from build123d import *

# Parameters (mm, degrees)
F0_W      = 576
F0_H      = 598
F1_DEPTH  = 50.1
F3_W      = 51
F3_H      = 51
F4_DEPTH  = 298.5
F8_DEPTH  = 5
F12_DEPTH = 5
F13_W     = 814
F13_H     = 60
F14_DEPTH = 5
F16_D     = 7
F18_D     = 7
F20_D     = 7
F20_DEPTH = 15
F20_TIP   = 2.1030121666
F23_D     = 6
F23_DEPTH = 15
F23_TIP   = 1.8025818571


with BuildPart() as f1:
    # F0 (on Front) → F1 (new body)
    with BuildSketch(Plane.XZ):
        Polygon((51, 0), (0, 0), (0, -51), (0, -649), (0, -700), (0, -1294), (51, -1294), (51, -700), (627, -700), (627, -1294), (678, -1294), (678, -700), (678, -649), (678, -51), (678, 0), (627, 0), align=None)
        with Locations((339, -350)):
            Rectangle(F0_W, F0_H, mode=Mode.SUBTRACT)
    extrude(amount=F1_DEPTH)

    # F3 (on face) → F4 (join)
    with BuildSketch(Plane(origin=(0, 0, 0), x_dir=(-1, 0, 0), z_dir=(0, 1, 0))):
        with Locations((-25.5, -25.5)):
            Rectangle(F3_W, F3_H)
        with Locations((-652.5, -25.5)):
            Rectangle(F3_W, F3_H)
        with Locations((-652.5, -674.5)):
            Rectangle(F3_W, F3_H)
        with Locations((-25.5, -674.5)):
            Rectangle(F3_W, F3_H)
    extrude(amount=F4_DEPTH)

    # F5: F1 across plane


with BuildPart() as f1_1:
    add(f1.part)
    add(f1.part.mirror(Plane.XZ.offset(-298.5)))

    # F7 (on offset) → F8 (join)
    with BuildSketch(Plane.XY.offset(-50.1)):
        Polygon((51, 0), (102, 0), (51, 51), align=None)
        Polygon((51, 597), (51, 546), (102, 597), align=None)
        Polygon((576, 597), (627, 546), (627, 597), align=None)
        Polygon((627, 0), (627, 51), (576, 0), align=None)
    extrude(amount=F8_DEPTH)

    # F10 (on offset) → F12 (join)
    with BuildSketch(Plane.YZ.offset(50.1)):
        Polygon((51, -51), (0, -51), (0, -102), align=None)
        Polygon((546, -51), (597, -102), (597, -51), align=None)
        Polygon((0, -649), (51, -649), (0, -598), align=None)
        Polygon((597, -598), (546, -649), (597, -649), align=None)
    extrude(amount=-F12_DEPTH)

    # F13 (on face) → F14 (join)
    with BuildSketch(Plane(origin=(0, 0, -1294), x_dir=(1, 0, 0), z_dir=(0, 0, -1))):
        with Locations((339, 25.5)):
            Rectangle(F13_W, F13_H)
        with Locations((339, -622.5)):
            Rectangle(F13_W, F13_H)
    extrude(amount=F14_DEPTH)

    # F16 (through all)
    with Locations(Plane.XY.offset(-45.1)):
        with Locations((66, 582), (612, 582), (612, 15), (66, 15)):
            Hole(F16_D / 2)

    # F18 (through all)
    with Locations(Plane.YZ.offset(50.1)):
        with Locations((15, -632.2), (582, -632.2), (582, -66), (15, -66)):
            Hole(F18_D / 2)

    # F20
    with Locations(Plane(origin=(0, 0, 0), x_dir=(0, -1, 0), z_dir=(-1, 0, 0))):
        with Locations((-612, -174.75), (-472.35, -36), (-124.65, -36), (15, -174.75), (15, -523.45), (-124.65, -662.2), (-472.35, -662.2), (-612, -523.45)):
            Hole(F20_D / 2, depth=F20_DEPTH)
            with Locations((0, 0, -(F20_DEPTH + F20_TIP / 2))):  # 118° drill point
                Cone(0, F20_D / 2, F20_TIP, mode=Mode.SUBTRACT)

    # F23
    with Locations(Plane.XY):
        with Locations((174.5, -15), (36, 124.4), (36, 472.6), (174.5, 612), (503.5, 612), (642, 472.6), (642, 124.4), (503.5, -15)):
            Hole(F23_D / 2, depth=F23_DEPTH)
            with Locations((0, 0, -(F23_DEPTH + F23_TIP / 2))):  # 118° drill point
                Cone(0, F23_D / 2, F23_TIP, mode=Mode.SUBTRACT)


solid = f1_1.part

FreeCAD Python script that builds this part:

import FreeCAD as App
import Part
import Sketcher
from FreeCAD import Vector
Q = App.Units.Quantity


def add_polygon(sketch, points):
    """Adds a closed chain of lines whose ends are joined by coincident constraints."""
    first, n = sketch.GeometryCount, len(points)
    for a, b in zip(points, points[1:] + points[:1]):
        sketch.addGeometry(Part.LineSegment(App.Vector(*a, 0), App.Vector(*b, 0)), False)
    for i in range(n):
        sketch.addConstraint(Sketcher.Constraint("Coincident", first + i, 2, first + (i + 1) % n, 1))

doc = App.newDocument("Part")
body = doc.addObject("PartDesign::Body", "Body")

# Sketch on XZ plane
sketch1 = body.newObject("Sketcher::SketchObject", "Sketch")
sketch1.AttachmentSupport = (doc.getObject("XZ_Plane"), [""])
sketch1.MapMode = "FlatFace"
add_polygon(sketch1, [(0, 0), (0, -1294), (51, -1294), (51, -700), (627, -700), (627, -1294), (678, -1294), (678, 0)])  # lines 0-7
add_polygon(sketch1, [(627, -649), (51, -649), (51, -51), (627, -51)])  # lines 8-11
sketch1.addConstraint([
    Sketcher.Constraint("Vertical", 0),
    Sketcher.Constraint("Horizontal", 1),
    Sketcher.Constraint("Vertical", 2),
    Sketcher.Constraint("Horizontal", 3),
    Sketcher.Constraint("Vertical", 4),
    Sketcher.Constraint("Horizontal", 5),
    Sketcher.Constraint("Vertical", 6),
    Sketcher.Constraint("Horizontal", 7),
    Sketcher.Constraint("Horizontal", 8),
    Sketcher.Constraint("Vertical", 9),
    Sketcher.Constraint("Horizontal", 10),
    Sketcher.Constraint("Vertical", 11),
    Sketcher.Constraint("Coincident", 7, 2, -1, 1),
    Sketcher.Constraint("Horizontal", 1, 2, 4, 2),
    Sketcher.Constraint("Vertical", 2, 2, 8, 2),
    Sketcher.Constraint("Vertical", 4, 2, 10, 2),
    Sketcher.Constraint("Equal", 1, 5),
    Sketcher.Constraint("DistanceX", 1, 1, 1, 2, Q("51 mm")),
    Sketcher.Constraint("DistanceX", 3, 1, 3, 2, Q("576 mm")),
    Sketcher.Constraint("DistanceY", 0, 2, 0, 1, Q("1294 mm")),
    Sketcher.Constraint("DistanceY", 2, 1, 2, 2, Q("594 mm")),
    Sketcher.Constraint("DistanceY", 9, 1, 9, 2, Q("598 mm")),
    Sketcher.Constraint("DistanceY", 8, 2, -1, 1, Q("649 mm")),
])
pad1 = body.newObject("PartDesign::Pad", "Pad")
pad1.Profile = sketch1
pad1.Length = 50.1

# Sketch on XZ plane
sketch2 = body.newObject("Sketcher::SketchObject", "Sketch001")
sketch2.AttachmentSupport = (doc.getObject("XZ_Plane"), [""])
sketch2.MapMode = "FlatFace"
add_polygon(sketch2, [(51, 0), (51, -51), (0, -51), (0, 0)])  # lines 0-3
add_polygon(sketch2, [(678, 0), (678, -51), (627, -51), (627, 0)])  # lines 4-7
add_polygon(sketch2, [(678, -649), (678, -700), (627, -700), (627, -649)])  # lines 8-11
add_polygon(sketch2, [(51, -649), (51, -700), (0, -700), (0, -649)])  # lines 12-15
sketch2.addConstraint([
    Sketcher.Constraint("Vertical", 0),
    Sketcher.Constraint("Horizontal", 1),
    Sketcher.Constraint("Vertical", 2),
    Sketcher.Constraint("Horizontal", 3),
    Sketcher.Constraint("Vertical", 4),
    Sketcher.Constraint("Horizontal", 5),
    Sketcher.Constraint("Vertical", 6),
    Sketcher.Constraint("Horizontal", 7),
    Sketcher.Constraint("Vertical", 8),
    Sketcher.Constraint("Horizontal", 9),
    Sketcher.Constraint("Vertical", 10),
    Sketcher.Constraint("Horizontal", 11),
    Sketcher.Constraint("Vertical", 12),
    Sketcher.Constraint("Horizontal", 13),
    Sketcher.Constraint("Vertical", 14),
    Sketcher.Constraint("Horizontal", 15),
    Sketcher.Constraint("Coincident", 2, 2, -1, 1),
    Sketcher.Constraint("PointOnObject", 6, 2, -1),
    Sketcher.Constraint("PointOnObject", 13, 2, -2),
    Sketcher.Constraint("Horizontal", 1, 2, 4, 2),
    Sketcher.Constraint("Horizontal", 9, 2, 12, 2),
    Sketcher.Constraint("Horizontal", 11, 2, 14, 2),
    Sketcher.Constraint("Vertical", 7, 2, 8, 2),
    Sketcher.Constraint("Vertical", 6, 2, 9, 2),
    Sketcher.Constraint("Vertical", 3, 2, 12, 2),
    Sketcher.Constraint("Equal", 3, 5),
    Sketcher.Constraint("Equal", 15, 0),
    Sketcher.Constraint("Equal", 6, 8),
    Sketcher.Constraint("DistanceX", 1, 2, 1, 1, Q("51 mm")),
    Sketcher.Constraint("DistanceX", -1, 1, 4, 2, Q("678 mm")),
    Sketcher.Constraint("DistanceY", 8, 2, -1, 1, Q("700 mm")),
])
pad2 = body.newObject("PartDesign::Pad", "Pad001")
pad2.Profile = sketch2
pad2.Length = 298.5
pad2.Reversed = True
body2 = doc.addObject("PartDesign::Body", "Body001")
doc.recompute()

body2.BaseFeature = body
doc.recompute()

mirroring = doc.addObject("Part::Mirroring", "Mirroring")
mirroring.Source = body
mirroring.Base = Vector(0, 298.5, 0)
mirroring.Normal = Vector(0, -1, 0)
body3 = doc.addObject("PartDesign::Body", "Body002")
body3.BaseFeature = mirroring
boolean = body2.newObject("PartDesign::Boolean", "Boolean")
boolean.Type = "Fuse"
boolean.addObjects([body3])
doc.recompute()

# Sketch on XY plane
sketch3 = body2.newObject("Sketcher::SketchObject", "Sketch002")
sketch3.AttachmentSupport = (doc.getObject("XY_Plane001"), [""])
sketch3.MapMode = "FlatFace"
sketch3.AttachmentOffset = App.Placement(Vector(0, 0, -50.1), App.Rotation())
add_polygon(sketch3, [(51, 0), (102, 0), (51, 51)])  # lines 0-2
add_polygon(sketch3, [(51, 597), (51, 546), (102, 597)])  # lines 3-5
add_polygon(sketch3, [(576, 597), (627, 546), (627, 597)])  # lines 6-8
add_polygon(sketch3, [(627, 0), (627, 51), (576, 0)])  # lines 9-11
sketch3.addConstraint([
    Sketcher.Constraint("Horizontal", 0),
    Sketcher.Constraint("Vertical", 2),
    Sketcher.Constraint("Vertical", 3),
    Sketcher.Constraint("Horizontal", 5),
    Sketcher.Constraint("Vertical", 7),
    Sketcher.Constraint("Horizontal", 8),
    Sketcher.Constraint("Vertical", 9),
    Sketcher.Constraint("Horizontal", 11),
    Sketcher.Constraint("PointOnObject", 0, 2, -1),
    Sketcher.Constraint("PointOnObject", 10, 2, -1),
    Sketcher.Constraint("Perpendicular", 1, 4),
    Sketcher.Constraint("Perpendicular", 4, 6),
    Sketcher.Constraint("Perpendicular", 6, 10),
    Sketcher.Constraint("Horizontal", 3, 2, 6, 2),
    Sketcher.Constraint("Horizontal", 5, 2, 7, 2),
    Sketcher.Constraint("Horizontal", 1, 2, 9, 2),
    Sketcher.Constraint("Vertical", 2, 2, 3, 2),
    Sketcher.Constraint("Vertical", 0, 2, 4, 2),
    Sketcher.Constraint("Vertical", 7, 2, 9, 2),
    Sketcher.Constraint("Vertical", 8, 2, 10, 2),
    Sketcher.Constraint("DistanceX", 0, 1, 0, 2, Q("51 mm")),
    Sketcher.Constraint("DistanceX", -1, 1, 0, 2, Q("102 mm")),
    Sketcher.Constraint("DistanceY", -1, 1, 3, 2, Q("546 mm")),
    Sketcher.Constraint("DistanceX", -1, 1, 6, 2, Q("627 mm")),
])
pad3 = body2.newObject("PartDesign::Pad", "Pad002")
pad3.Profile = sketch3
pad3.Length = 5

# Sketch on YZ plane
sketch4 = body2.newObject("Sketcher::SketchObject", "Sketch003")
sketch4.AttachmentSupport = (doc.getObject("YZ_Plane001"), [""])
sketch4.MapMode = "FlatFace"
sketch4.AttachmentOffset = App.Placement(Vector(0, 0, 50.1), App.Rotation())
add_polygon(sketch4, [(51, -51), (0, -51), (0, -102)])  # lines 0-2
add_polygon(sketch4, [(546, -51), (597, -102), (597, -51)])  # lines 3-5
add_polygon(sketch4, [(0, -649), (51, -649), (0, -598)])  # lines 6-8
add_polygon(sketch4, [(597, -598), (546, -649), (597, -649)])  # lines 9-11
sketch4.addConstraint([
    Sketcher.Constraint("Horizontal", 0),
    Sketcher.Constraint("Vertical", 1),
    Sketcher.Constraint("Vertical", 4),
    Sketcher.Constraint("Horizontal", 5),
    Sketcher.Constraint("Horizontal", 6),
    Sketcher.Constraint("Vertical", 8),
    Sketcher.Constraint("Horizontal", 10),
    Sketcher.Constraint("Vertical", 11),
    Sketcher.Constraint("PointOnObject", 0, 2, -2),
    Sketcher.Constraint("PointOnObject", 7, 2, -2),
    Sketcher.Constraint("Perpendicular", 2, 3),
    Sketcher.Constraint("Parallel", 3, 7),
    Sketcher.Constraint("Perpendicular", 7, 9),
    Sketcher.Constraint("Horizontal", 1, 2, 3, 2),
    Sketcher.Constraint("Horizontal", 2, 2, 4, 2),
    Sketcher.Constraint("Horizontal", 8, 2, 9, 2),
    Sketcher.Constraint("Horizontal", 7, 2, 11, 2),
    Sketcher.Constraint("Vertical", 2, 2, 6, 2),
    Sketcher.Constraint("Vertical", 5, 2, 9, 2),
    Sketcher.Constraint("Vertical", 4, 2, 10, 2),
    Sketcher.Constraint("DistanceX", 0, 2, 0, 1, Q("51 mm")),
    Sketcher.Constraint("DistanceY", 0, 2, -1, 1, Q("51 mm")),
    Sketcher.Constraint("DistanceX", -1, 1, 3, 2, Q("597 mm")),
    Sketcher.Constraint("DistanceY", 6, 2, -1, 1, Q("649 mm")),
])
pad4 = body2.newObject("PartDesign::Pad", "Pad003")
pad4.Profile = sketch4
pad4.Length = 5
pad4.Reversed = True

# Sketch on XY plane
sketch5 = body2.newObject("Sketcher::SketchObject", "Sketch004")
sketch5.AttachmentSupport = (doc.getObject("XY_Plane001"), [""])
sketch5.MapMode = "FlatFace"
sketch5.AttachmentOffset = App.Placement(Vector(0, 0, -1294), App.Rotation())
add_polygon(sketch5, [(-68, -55.5), (-68, 4.5), (746, 4.5), (746, -55.5)])  # lines 0-3
add_polygon(sketch5, [(-68, 592.5), (-68, 652.5), (746, 652.5), (746, 592.5)])  # lines 4-7
sketch5.addConstraint([
    Sketcher.Constraint("Vertical", 0),
    Sketcher.Constraint("Horizontal", 1),
    Sketcher.Constraint("Vertical", 2),
    Sketcher.Constraint("Horizontal", 3),
    Sketcher.Constraint("Vertical", 4),
    Sketcher.Constraint("Horizontal", 5),
    Sketcher.Constraint("Vertical", 6),
    Sketcher.Constraint("Horizontal", 7),
    Sketcher.Constraint("Vertical", 3, 2, 4, 2),
    Sketcher.Constraint("Vertical", 2, 2, 5, 2),
    Sketcher.Constraint("Equal", 2, 4),
    Sketcher.Constraint("DistanceX", 1, 1, 1, 2, Q("814 mm")),
    Sketcher.Constraint("DistanceY", 0, 1, 0, 2, Q("60 mm")),
    Sketcher.Constraint("DistanceX", 0, 2, -1, 1, Q("68 mm")),
    Sketcher.Constraint("DistanceY", 0, 2, 4, 2, Q("648 mm")),
    Sketcher.Constraint("DistanceY", -1, 1, 0, 2, Q("4.5 mm")),
])
pad5 = body2.newObject("PartDesign::Pad", "Pad004")
pad5.Profile = sketch5
pad5.Length = 5
pad5.Reversed = True

# Sketch on XY plane
sketch6 = body2.newObject("Sketcher::SketchObject", "Sketch005")
sketch6.AttachmentSupport = (doc.getObject("XY_Plane001"), [""])
sketch6.MapMode = "FlatFace"
sketch6.AttachmentOffset = App.Placement(Vector(0, 0, -45.1), App.Rotation())
sketch6.addGeometry([
    Part.Circle(Vector(66, 582, 0), Vector(0, 0, 1), 3.5),
    Part.Circle(Vector(612, 582, 0), Vector(0, 0, 1), 3.5),
    Part.Circle(Vector(612, 15, 0), Vector(0, 0, 1), 3.5),
    Part.Circle(Vector(66, 15, 0), Vector(0, 0, 1), 3.5),
], False)
sketch6.addConstraint([
    Sketcher.Constraint("Equal", 0, 1),
    Sketcher.Constraint("Equal", 1, 2),
    Sketcher.Constraint("Equal", 2, 3),
    Sketcher.Constraint("Horizontal", 0, 3, 1, 3),
    Sketcher.Constraint("Horizontal", 2, 3, 3, 3),
    Sketcher.Constraint("Vertical", 1, 3, 2, 3),
    Sketcher.Constraint("Vertical", 0, 3, 3, 3),
    Sketcher.Constraint("Diameter", 0, Q("7 mm")),
    Sketcher.Constraint("DistanceX", -1, 1, 0, 3, Q("66 mm")),
    Sketcher.Constraint("DistanceY", -1, 1, 0, 3, Q("582 mm")),
    Sketcher.Constraint("DistanceX", -1, 1, 1, 3, Q("612 mm")),
    Sketcher.Constraint("DistanceY", -1, 1, 2, 3, Q("15 mm")),
])
doc.recompute()
hole = body2.newObject("PartDesign::Hole", "Hole")
hole.Profile = sketch6
hole.ThreadType = "None"
hole.Diameter = 7
hole.DepthType = "ThroughAll"

# Sketch on YZ plane
sketch7 = body2.newObject("Sketcher::SketchObject", "Sketch006")
sketch7.AttachmentSupport = (doc.getObject("YZ_Plane001"), [""])
sketch7.MapMode = "FlatFace"
sketch7.AttachmentOffset = App.Placement(Vector(0, 0, 50.1), App.Rotation())
sketch7.addGeometry([
    Part.Circle(Vector(15, -632.2, 0), Vector(0, 0, 1), 3.5),
    Part.Circle(Vector(582, -632.2, 0), Vector(0, 0, 1), 3.5),
    Part.Circle(Vector(582, -66, 0), Vector(0, 0, 1), 3.5),
    Part.Circle(Vector(15, -66, 0), Vector(0, 0, 1), 3.5),
], False)
sketch7.addConstraint([
    Sketcher.Constraint("Equal", 0, 1),
    Sketcher.Constraint("Equal", 1, 2),
    Sketcher.Constraint("Equal", 2, 3),
    Sketcher.Constraint("Horizontal", 0, 3, 1, 3),
    Sketcher.Constraint("Horizontal", 2, 3, 3, 3),
    Sketcher.Constraint("Vertical", 1, 3, 2, 3),
    Sketcher.Constraint("Vertical", 0, 3, 3, 3),
    Sketcher.Constraint("Diameter", 0, Q("7 mm")),
    Sketcher.Constraint("DistanceX", -1, 1, 0, 3, Q("15 mm")),
    Sketcher.Constraint("DistanceX", -1, 1, 1, 3, Q("582 mm")),
    Sketcher.Constraint("DistanceY", 2, 3, -1, 1, Q("66 mm")),
    Sketcher.Constraint("DistanceY", 0, 3, -1, 1, Q("632.2 mm")),
])
doc.recompute()
hole2 = body2.newObject("PartDesign::Hole", "Hole001")
hole2.Profile = sketch7
hole2.ThreadType = "None"
hole2.Diameter = 7
hole2.DepthType = "ThroughAll"

# Sketch on YZ plane
sketch8 = body2.newObject("Sketcher::SketchObject", "Sketch007")
sketch8.AttachmentSupport = (doc.getObject("YZ_Plane001"), [""])
sketch8.MapMode = "FlatFace"
sketch8.addGeometry([
    Part.Circle(Vector(612, -174.75, 0), Vector(0, 0, 1), 3.5),  # 0
    Part.Circle(Vector(472.35, -36, 0), Vector(0, 0, 1), 3.5),  # 1
    Part.Circle(Vector(124.65, -36, 0), Vector(0, 0, 1), 3.5),  # 2
    Part.Circle(Vector(-15, -174.75, 0), Vector(0, 0, 1), 3.5),  # 3
    Part.Circle(Vector(-15, -523.45, 0), Vector(0, 0, 1), 3.5),  # 4
    Part.Circle(Vector(124.65, -662.2, 0), Vector(0, 0, 1), 3.5),  # 5
    Part.Circle(Vector(472.35, -662.2, 0), Vector(0, 0, 1), 3.5),  # 6
    Part.Circle(Vector(612, -523.45, 0), Vector(0, 0, 1), 3.5),  # 7
], False)
sketch8.addConstraint([
    Sketcher.Constraint("Equal", 0, 1),
    Sketcher.Constraint("Equal", 1, 2),
    Sketcher.Constraint("Equal", 2, 3),
    Sketcher.Constraint("Equal", 3, 4),
    Sketcher.Constraint("Equal", 4, 5),
    Sketcher.Constraint("Equal", 5, 6),
    Sketcher.Constraint("Equal", 6, 7),
    Sketcher.Constraint("Horizontal", 1, 3, 2, 3),
    Sketcher.Constraint("Horizontal", 0, 3, 3, 3),
    Sketcher.Constraint("Horizontal", 5, 3, 6, 3),
    Sketcher.Constraint("Horizontal", 4, 3, 7, 3),
    Sketcher.Constraint("Vertical", 3, 3, 4, 3),
    Sketcher.Constraint("Vertical", 2, 3, 5, 3),
    Sketcher.Constraint("Vertical", 1, 3, 6, 3),
    Sketcher.Constraint("Vertical", 0, 3, 7, 3),
    Sketcher.Constraint("Diameter", 0, Q("7 mm")),
    Sketcher.Constraint("DistanceX", -1, 1, 0, 3, Q("612 mm")),
    Sketcher.Constraint("DistanceY", 1, 3, -1, 1, Q("36 mm")),
    Sketcher.Constraint("DistanceX", 3, 3, -1, 1, Q("15 mm")),
    Sketcher.Constraint("DistanceY", 5, 3, -1, 1, Q("662.2 mm")),
    Sketcher.Constraint("DistanceX", 2, 3, 1, 3, Q("347.7 mm")),
    Sketcher.Constraint("DistanceY", 4, 3, 3, 3, Q("348.7 mm")),
    Sketcher.Constraint("DistanceY", 0, 3, -1, 1, Q("174.75 mm")),
    Sketcher.Constraint("DistanceX", -1, 1, 1, 3, Q("472.35 mm")),
])
doc.recompute()
hole3 = body2.newObject("PartDesign::Hole", "Hole002")
hole3.Profile = sketch8
hole3.ThreadType = "None"
hole3.Diameter = 7
hole3.DepthType = "Dimension"
hole3.Depth = 15
hole3.DrillPoint = "Angled"
hole3.DrillPointAngle = 118
hole3.Reversed = True

# Sketch on XY plane
sketch9 = body2.newObject("Sketcher::SketchObject", "Sketch008")
sketch9.AttachmentSupport = (doc.getObject("XY_Plane001"), [""])
sketch9.MapMode = "FlatFace"
sketch9.addGeometry([
    Part.Circle(Vector(174.5, -15, 0), Vector(0, 0, 1), 3),  # 0
    Part.Circle(Vector(36, 124.4, 0), Vector(0, 0, 1), 3),  # 1
    Part.Circle(Vector(36, 472.6, 0), Vector(0, 0, 1), 3),  # 2
    Part.Circle(Vector(174.5, 612, 0), Vector(0, 0, 1), 3),  # 3
    Part.Circle(Vector(503.5, 612, 0), Vector(0, 0, 1), 3),  # 4
    Part.Circle(Vector(642, 472.6, 0), Vector(0, 0, 1), 3),  # 5
    Part.Circle(Vector(642, 124.4, 0), Vector(0, 0, 1), 3),  # 6
    Part.Circle(Vector(503.5, -15, 0), Vector(0, 0, 1), 3),  # 7
], False)
sketch9.addConstraint([
    Sketcher.Constraint("Equal", 0, 1),
    Sketcher.Constraint("Equal", 1, 2),
    Sketcher.Constraint("Equal", 2, 3),
    Sketcher.Constraint("Equal", 3, 4),
    Sketcher.Constraint("Equal", 4, 5),
    Sketcher.Constraint("Equal", 5, 6),
    Sketcher.Constraint("Equal", 6, 7),
    Sketcher.Constraint("Horizontal", 3, 3, 4, 3),
    Sketcher.Constraint("Horizontal", 2, 3, 5, 3),
    Sketcher.Constraint("Horizontal", 1, 3, 6, 3),
    Sketcher.Constraint("Horizontal", 0, 3, 7, 3),
    Sketcher.Constraint("Vertical", 1, 3, 2, 3),
    Sketcher.Constraint("Vertical", 0, 3, 3, 3),
    Sketcher.Constraint("Vertical", 5, 3, 6, 3),
    Sketcher.Constraint("Vertical", 4, 3, 7, 3),
    Sketcher.Constraint("Diameter", 0, Q("6 mm")),
    Sketcher.Constraint("DistanceY", 0, 3, -1, 1, Q("15 mm")),
    Sketcher.Constraint("DistanceX", -1, 1, 1, 3, Q("36 mm")),
    Sketcher.Constraint("DistanceY", -1, 1, 3, 3, Q("612 mm")),
    Sketcher.Constraint("DistanceX", -1, 1, 5, 3, Q("642 mm")),
    Sketcher.Constraint("DistanceX", 3, 3, 4, 3, Q("329 mm")),
    Sketcher.Constraint("DistanceX", -1, 1, 0, 3, Q("174.5 mm")),
    Sketcher.Constraint("DistanceY", -1, 1, 1, 3, Q("124.4 mm")),
    Sketcher.Constraint("DistanceY", -1, 1, 2, 3, Q("472.6 mm")),
])
doc.recompute()
hole4 = body2.newObject("PartDesign::Hole", "Hole003")
hole4.Profile = sketch9
hole4.ThreadType = "None"
hole4.Diameter = 6
hole4.DepthType = "Dimension"
hole4.Depth = 15
hole4.DrillPoint = "Angled"
hole4.DrillPointAngle = 118
mirroring.Visibility = False

doc.recompute()
